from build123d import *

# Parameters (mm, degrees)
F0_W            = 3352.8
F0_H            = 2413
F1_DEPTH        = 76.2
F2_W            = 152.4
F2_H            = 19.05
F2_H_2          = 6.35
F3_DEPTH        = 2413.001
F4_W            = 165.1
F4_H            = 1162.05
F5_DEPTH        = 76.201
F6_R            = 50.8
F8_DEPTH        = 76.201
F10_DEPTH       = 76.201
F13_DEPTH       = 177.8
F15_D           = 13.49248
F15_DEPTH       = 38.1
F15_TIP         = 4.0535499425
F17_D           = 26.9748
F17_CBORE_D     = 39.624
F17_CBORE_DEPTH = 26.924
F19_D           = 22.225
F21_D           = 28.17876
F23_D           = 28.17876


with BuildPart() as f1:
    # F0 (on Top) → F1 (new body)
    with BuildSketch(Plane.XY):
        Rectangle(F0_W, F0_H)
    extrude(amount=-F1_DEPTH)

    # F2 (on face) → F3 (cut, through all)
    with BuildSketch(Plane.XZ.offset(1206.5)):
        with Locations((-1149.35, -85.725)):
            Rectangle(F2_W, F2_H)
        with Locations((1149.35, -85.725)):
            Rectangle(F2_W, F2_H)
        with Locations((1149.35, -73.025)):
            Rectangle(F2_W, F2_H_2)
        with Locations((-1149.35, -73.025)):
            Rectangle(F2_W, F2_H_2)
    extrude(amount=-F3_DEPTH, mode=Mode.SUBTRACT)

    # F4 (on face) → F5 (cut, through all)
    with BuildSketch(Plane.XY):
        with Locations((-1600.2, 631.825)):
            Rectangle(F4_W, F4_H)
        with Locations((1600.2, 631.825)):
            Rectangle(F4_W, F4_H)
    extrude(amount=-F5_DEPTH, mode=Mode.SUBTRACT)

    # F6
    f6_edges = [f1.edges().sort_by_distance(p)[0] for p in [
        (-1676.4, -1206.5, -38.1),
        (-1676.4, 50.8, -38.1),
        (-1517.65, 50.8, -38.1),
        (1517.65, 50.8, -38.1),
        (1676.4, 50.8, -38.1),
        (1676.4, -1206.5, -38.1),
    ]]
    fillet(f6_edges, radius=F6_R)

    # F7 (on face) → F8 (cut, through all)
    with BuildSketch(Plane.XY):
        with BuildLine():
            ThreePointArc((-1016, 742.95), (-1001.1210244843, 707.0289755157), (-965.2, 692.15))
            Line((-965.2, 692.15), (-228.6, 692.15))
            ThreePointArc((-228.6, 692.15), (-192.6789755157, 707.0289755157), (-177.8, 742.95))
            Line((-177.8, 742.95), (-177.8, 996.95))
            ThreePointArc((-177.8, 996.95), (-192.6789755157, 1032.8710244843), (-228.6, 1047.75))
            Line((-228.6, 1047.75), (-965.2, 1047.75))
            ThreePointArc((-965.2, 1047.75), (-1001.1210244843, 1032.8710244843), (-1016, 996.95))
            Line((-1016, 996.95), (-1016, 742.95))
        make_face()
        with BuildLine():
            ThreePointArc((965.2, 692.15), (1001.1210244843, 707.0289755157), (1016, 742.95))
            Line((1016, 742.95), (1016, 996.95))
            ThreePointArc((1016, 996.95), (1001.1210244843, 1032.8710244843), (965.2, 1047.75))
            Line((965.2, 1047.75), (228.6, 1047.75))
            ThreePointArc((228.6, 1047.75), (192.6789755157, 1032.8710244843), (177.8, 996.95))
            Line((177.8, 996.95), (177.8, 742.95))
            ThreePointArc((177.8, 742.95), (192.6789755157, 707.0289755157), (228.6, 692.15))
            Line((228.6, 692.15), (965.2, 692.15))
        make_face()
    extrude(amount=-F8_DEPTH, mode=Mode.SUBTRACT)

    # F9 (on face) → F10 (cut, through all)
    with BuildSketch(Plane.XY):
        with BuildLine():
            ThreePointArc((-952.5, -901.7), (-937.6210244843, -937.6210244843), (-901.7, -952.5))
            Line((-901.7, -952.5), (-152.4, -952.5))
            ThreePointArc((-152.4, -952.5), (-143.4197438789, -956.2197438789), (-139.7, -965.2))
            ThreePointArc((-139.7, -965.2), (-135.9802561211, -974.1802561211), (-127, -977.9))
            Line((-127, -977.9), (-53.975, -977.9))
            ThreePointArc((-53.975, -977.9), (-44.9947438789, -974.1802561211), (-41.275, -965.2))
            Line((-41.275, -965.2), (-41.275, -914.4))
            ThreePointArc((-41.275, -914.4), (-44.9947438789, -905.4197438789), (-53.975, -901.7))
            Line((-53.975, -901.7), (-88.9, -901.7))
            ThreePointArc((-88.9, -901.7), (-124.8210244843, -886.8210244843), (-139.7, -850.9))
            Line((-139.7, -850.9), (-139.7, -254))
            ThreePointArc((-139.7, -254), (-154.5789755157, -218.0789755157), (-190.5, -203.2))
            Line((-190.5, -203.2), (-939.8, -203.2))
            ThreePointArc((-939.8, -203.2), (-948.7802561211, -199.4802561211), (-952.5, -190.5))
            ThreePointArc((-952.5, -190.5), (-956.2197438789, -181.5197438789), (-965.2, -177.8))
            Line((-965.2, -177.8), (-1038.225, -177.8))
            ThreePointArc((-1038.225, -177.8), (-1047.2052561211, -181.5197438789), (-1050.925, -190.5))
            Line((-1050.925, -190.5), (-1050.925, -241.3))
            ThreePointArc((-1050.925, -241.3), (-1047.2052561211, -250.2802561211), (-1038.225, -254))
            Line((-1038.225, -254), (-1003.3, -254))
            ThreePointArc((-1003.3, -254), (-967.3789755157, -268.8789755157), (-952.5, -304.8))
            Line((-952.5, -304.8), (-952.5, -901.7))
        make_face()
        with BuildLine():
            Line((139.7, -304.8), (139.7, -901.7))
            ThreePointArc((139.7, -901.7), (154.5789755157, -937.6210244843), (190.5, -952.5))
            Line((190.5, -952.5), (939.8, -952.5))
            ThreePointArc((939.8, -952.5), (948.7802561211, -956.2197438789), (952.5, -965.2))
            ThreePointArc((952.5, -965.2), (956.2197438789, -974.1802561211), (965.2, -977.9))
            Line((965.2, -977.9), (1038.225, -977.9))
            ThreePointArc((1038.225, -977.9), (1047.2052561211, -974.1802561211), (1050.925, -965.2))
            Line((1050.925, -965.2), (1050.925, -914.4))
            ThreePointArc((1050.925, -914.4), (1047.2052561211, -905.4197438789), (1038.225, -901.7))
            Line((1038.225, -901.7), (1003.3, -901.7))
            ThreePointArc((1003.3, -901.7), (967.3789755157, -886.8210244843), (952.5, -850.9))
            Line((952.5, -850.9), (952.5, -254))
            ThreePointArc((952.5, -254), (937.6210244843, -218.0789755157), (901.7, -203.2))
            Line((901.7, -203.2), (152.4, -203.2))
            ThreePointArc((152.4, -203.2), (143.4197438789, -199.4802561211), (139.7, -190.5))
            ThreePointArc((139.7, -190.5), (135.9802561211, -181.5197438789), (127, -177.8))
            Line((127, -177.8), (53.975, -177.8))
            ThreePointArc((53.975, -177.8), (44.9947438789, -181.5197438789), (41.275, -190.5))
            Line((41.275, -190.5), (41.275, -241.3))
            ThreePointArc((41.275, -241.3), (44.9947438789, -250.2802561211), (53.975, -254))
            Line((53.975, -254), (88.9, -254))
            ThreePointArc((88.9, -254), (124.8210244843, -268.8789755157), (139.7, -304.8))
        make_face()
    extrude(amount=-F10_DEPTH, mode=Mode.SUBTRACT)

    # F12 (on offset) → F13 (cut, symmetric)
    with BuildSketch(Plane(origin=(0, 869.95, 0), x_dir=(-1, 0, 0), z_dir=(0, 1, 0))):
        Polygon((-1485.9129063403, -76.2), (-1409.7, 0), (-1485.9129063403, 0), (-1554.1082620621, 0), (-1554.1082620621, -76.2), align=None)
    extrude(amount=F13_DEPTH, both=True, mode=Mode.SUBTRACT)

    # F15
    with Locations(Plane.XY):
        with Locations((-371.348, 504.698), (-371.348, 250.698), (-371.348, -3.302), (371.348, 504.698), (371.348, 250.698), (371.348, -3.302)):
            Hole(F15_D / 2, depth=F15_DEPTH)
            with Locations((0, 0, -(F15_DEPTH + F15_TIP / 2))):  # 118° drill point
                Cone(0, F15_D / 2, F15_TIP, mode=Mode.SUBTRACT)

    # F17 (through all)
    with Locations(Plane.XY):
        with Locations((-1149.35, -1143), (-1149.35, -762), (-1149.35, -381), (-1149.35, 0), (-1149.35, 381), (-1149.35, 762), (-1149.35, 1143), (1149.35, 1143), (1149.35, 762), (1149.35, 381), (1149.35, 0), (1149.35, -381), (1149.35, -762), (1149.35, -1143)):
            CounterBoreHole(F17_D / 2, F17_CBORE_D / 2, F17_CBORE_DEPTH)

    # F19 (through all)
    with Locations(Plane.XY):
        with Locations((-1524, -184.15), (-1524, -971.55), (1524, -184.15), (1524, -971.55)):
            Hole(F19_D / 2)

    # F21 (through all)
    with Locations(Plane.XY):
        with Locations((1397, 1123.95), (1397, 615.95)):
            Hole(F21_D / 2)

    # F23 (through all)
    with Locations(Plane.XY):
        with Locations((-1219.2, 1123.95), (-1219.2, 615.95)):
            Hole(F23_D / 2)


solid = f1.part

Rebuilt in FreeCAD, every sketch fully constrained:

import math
import FreeCAD as App
import Part
import Sketcher
Q = App.Units.Quantity


def edges_at(feature, points):
    """Names of the edges that pass closest to the given points."""
    edges = feature.Shape.Edges
    near = lambda p: min(range(len(edges)), key=lambda i: edges[i].distToShape(Part.Vertex(*p))[0])
    return sorted({f"Edge{near(p) + 1}" for p in points})

doc = App.newDocument("Part")
body = doc.addObject("PartDesign::Body", "Body")

sketch1 = body.newObject("Sketcher::SketchObject", "Sketch")
sketch1.AttachmentSupport = (doc.getObject("XY_Plane"), [""])
sketch1.MapMode = "FlatFace"
sketch1.addGeometry(Part.LineSegment(App.Vector(-1676, 1206, 0), App.Vector(-1676, -1206, 0)), False)
sketch1.addGeometry(Part.LineSegment(App.Vector(-1676, -1206, 0), App.Vector(1676, -1206, 0)), False)
sketch1.addGeometry(Part.LineSegment(App.Vector(1676, -1206, 0), App.Vector(1676, 1206, 0)), False)
sketch1.addGeometry(Part.LineSegment(App.Vector(1676, 1206, 0), App.Vector(-1676, 1206, 0)), False)
sketch1.addConstraint(Sketcher.Constraint("Coincident", 0, 2, 1, 1))
sketch1.addConstraint(Sketcher.Constraint("Coincident", 1, 2, 2, 1))
sketch1.addConstraint(Sketcher.Constraint("Coincident", 2, 2, 3, 1))
sketch1.addConstraint(Sketcher.Constraint("Coincident", 3, 2, 0, 1))
sketch1.addConstraint(Sketcher.Constraint("Vertical", 0))
sketch1.addConstraint(Sketcher.Constraint("Horizontal", 1))
sketch1.addConstraint(Sketcher.Constraint("Vertical", 2))
sketch1.addConstraint(Sketcher.Constraint("Horizontal", 3))
sketch1.addConstraint(Sketcher.Constraint("Symmetric", 0, 2, 2, 2, -1, 1))
sketch1.addConstraint(Sketcher.Constraint("DistanceX", 1, 1, 1, 2, Q("132 in")))
sketch1.addConstraint(Sketcher.Constraint("DistanceY", 0, 2, 0, 1, Q("95 in")))
pad1 = body.newObject("PartDesign::Pad", "Pad")
pad1.Profile = sketch1
pad1.Length = Q("3 in")
pad1.Reversed = True

sketch2 = body.newObject("Sketcher::SketchObject", "Sketch001")
sketch2.AttachmentSupport = (doc.getObject("XZ_Plane"), [""])
sketch2.MapMode = "FlatFace"
sketch2.AttachmentOffset = App.Placement(App.Vector(0, 0, 47.5 * 25.4), App.Rotation())
sketch2.addGeometry(Part.LineSegment(App.Vector(-1226, -95, 0), App.Vector(-1073, -95, 0)), False)
sketch2.addGeometry(Part.LineSegment(App.Vector(-1073, -95, 0), App.Vector(-1073, -70, 0)), False)
sketch2.addGeometry(Part.LineSegment(App.Vector(-1073, -70, 0), App.Vector(-1226, -70, 0)), False)
sketch2.addGeometry(Part.LineSegment(App.Vector(-1226, -70, 0), App.Vector(-1226, -95, 0)), False)
sketch2.addGeometry(Part.LineSegment(App.Vector(1073, -95, 0), App.Vector(1226, -95, 0)), False)
sketch2.addGeometry(Part.LineSegment(App.Vector(1226, -95, 0), App.Vector(1226, -70, 0)), False)
sketch2.addGeometry(Part.LineSegment(App.Vector(1226, -70, 0), App.Vector(1073, -70, 0)), False)
sketch2.addGeometry(Part.LineSegment(App.Vector(1073, -70, 0), App.Vector(1073, -95, 0)), False)
sketch2.addConstraint(Sketcher.Constraint("Coincident", 0, 2, 1, 1))
sketch2.addConstraint(Sketcher.Constraint("Coincident", 1, 2, 2, 1))
sketch2.addConstraint(Sketcher.Constraint("Coincident", 2, 2, 3, 1))
sketch2.addConstraint(Sketcher.Constraint("Coincident", 3, 2, 0, 1))
sketch2.addConstraint(Sketcher.Constraint("Coincident", 4, 2, 5, 1))
sketch2.addConstraint(Sketcher.Constraint("Coincident", 5, 2, 6, 1))
sketch2.addConstraint(Sketcher.Constraint("Coincident", 6, 2, 7, 1))
sketch2.addConstraint(Sketcher.Constraint("Coincident", 7, 2, 4, 1))
sketch2.addConstraint(Sketcher.Constraint("Horizontal", 0))
sketch2.addConstraint(Sketcher.Constraint("Vertical", 1))
sketch2.addConstraint(Sketcher.Constraint("Horizontal", 2))
sketch2.addConstraint(Sketcher.Constraint("Vertical", 3))
sketch2.addConstraint(Sketcher.Constraint("Horizontal", 4))
sketch2.addConstraint(Sketcher.Constraint("Vertical", 5))
sketch2.addConstraint(Sketcher.Constraint("Horizontal", 6))
sketch2.addConstraint(Sketcher.Constraint("Vertical", 7))
sketch2.addConstraint(Sketcher.Constraint("Symmetric", 3, 2, 4, 2, -2))
sketch2.addConstraint(Sketcher.Constraint("Symmetric", 1, 2, 6, 2, -2))
sketch2.addConstraint(Sketcher.Constraint("DistanceX", 0, 1, 0, 2, Q("6 in")))
sketch2.addConstraint(Sketcher.Constraint("DistanceY", 1, 1, 1, 2, Q("1 in")))
sketch2.addConstraint(Sketcher.Constraint("DistanceX", 0, 2, 4, 2, Q("90.5 in")))
sketch2.addConstraint(Sketcher.Constraint("DistanceY", 0, 2, -1, 1, Q("3.75 in")))
pocket1 = body.newObject("PartDesign::Pocket", "Pocket")
pocket1.Profile = sketch2
pocket1.Type = "ThroughAll"

sketch3 = body.newObject("Sketcher::SketchObject", "Sketch002")
sketch3.AttachmentSupport = (doc.getObject("XY_Plane"), [""])
sketch3.MapMode = "FlatFace"
sketch3.addGeometry(Part.LineSegment(App.Vector(-1683, 1213, 0), App.Vector(-1683, 51, 0)), False)
sketch3.addGeometry(Part.LineSegment(App.Vector(-1683, 51, 0), App.Vector(-1518, 51, 0)), False)
sketch3.addGeometry(Part.LineSegment(App.Vector(-1518, 51, 0), App.Vector(-1518, 1213, 0)), False)
sketch3.addGeometry(Part.LineSegment(App.Vector(-1518, 1213, 0), App.Vector(-1683, 1213, 0)), False)
sketch3.addGeometry(Part.LineSegment(App.Vector(1518, 1213, 0), App.Vector(1518, 51, 0)), False)
sketch3.addGeometry(Part.LineSegment(App.Vector(1518, 51, 0), App.Vector(1683, 51, 0)), False)
sketch3.addGeometry(Part.LineSegment(App.Vector(1683, 51, 0), App.Vector(1683, 1213, 0)), False)
sketch3.addGeometry(Part.LineSegment(App.Vector(1683, 1213, 0), App.Vector(1518, 1213, 0)), False)
sketch3.addConstraint(Sketcher.Constraint("Coincident", 0, 2, 1, 1))
sketch3.addConstraint(Sketcher.Constraint("Coincident", 1, 2, 2, 1))
sketch3.addConstraint(Sketcher.Constraint("Coincident", 2, 2, 3, 1))
sketch3.addConstraint(Sketcher.Constraint("Coincident", 3, 2, 0, 1))
sketch3.addConstraint(Sketcher.Constraint("Coincident", 4, 2, 5, 1))
sketch3.addConstraint(Sketcher.Constraint("Coincident", 5, 2, 6, 1))
sketch3.addConstraint(Sketcher.Constraint("Coincident", 6, 2, 7, 1))
sketch3.addConstraint(Sketcher.Constraint("Coincident", 7, 2, 4, 1))
sketch3.addConstraint(Sketcher.Constraint("Vertical", 0))
sketch3.addConstraint(Sketcher.Constraint("Horizontal", 1))
sketch3.addConstraint(Sketcher.Constraint("Vertical", 2))
sketch3.addConstraint(Sketcher.Constraint("Horizontal", 3))
sketch3.addConstraint(Sketcher.Constraint("Vertical", 4))
sketch3.addConstraint(Sketcher.Constraint("Horizontal", 5))
sketch3.addConstraint(Sketcher.Constraint("Vertical", 6))
sketch3.addConstraint(Sketcher.Constraint("Horizontal", 7))
sketch3.addConstraint(Sketcher.Constraint("Symmetric", 1, 2, 4, 2, -2))
sketch3.addConstraint(Sketcher.Constraint("Symmetric", 3, 2, 6, 2, -2))
sketch3.addConstraint(Sketcher.Constraint("DistanceX", 1, 1, 1, 2, Q("6.5 in")))
sketch3.addConstraint(Sketcher.Constraint("DistanceY", -1, 1, 0, 2, Q("2 in")))
sketch3.addConstraint(Sketcher.Constraint("DistanceX", 0, 2, 4, 2, Q("126 in")))
sketch3.addConstraint(Sketcher.Constraint("DistanceY", 0, 2, 0, 1, Q("45.75 in")))
pocket2 = body.newObject("PartDesign::Pocket", "Pocket001")
pocket2.Profile = sketch3
pocket2.Type = "ThroughAll"
doc.recompute()

fillet = body.newObject("PartDesign::Fillet", "Fillet")
fillet.Base = (pocket2, edges_at(pocket2, [
    (-1676.4, -1206.5, -38.1),
    (-1676.4, 50.8, -38.1),
    (-1517.65, 50.8, -38.1),
    (1517.65, 50.8, -38.1),
    (1676.4, 50.8, -38.1),
    (1676.4, -1206.5, -38.1),
]))
fillet.Radius = Q("2 in")

sketch4 = body.newObject("Sketcher::SketchObject", "Sketch003")
sketch4.AttachmentSupport = (doc.getObject("XY_Plane"), [""])
sketch4.MapMode = "FlatFace"
sketch4.addGeometry(Part.ArcOfCircle(Part.Circle(App.Vector(-965, 743, 0), App.Vector(0, 0, 1), 51), math.radians(180), math.radians(270)), False)
sketch4.addGeometry(Part.LineSegment(App.Vector(-965, 692, 0), App.Vector(-229, 692, 0)), False)
sketch4.addGeometry(Part.ArcOfCircle(Part.Circle(App.Vector(-229, 743, 0), App.Vector(0, 0, 1), 51), math.radians(-90), math.radians(0)), False)
sketch4.addGeometry(Part.LineSegment(App.Vector(-178, 743, 0), App.Vector(-178, 997, 0)), False)
sketch4.addGeometry(Part.ArcOfCircle(Part.Circle(App.Vector(-229, 997, 0), App.Vector(0, 0, 1), 51), math.radians(0), math.radians(90)), False)
sketch4.addGeometry(Part.LineSegment(App.Vector(-229, 1048, 0), App.Vector(-965, 1048, 0)), False)
sketch4.addGeometry(Part.ArcOfCircle(Part.Circle(App.Vector(-965, 997, 0), App.Vector(0, 0, 1), 51), math.radians(90), math.radians(180)), False)
sketch4.addGeometry(Part.LineSegment(App.Vector(-1016, 997, 0), App.Vector(-1016, 743, 0)), False)
sketch4.addGeometry(Part.ArcOfCircle(Part.Circle(App.Vector(965, 743, 0), App.Vector(0, 0, 1), 51), math.radians(-90), math.radians(0)), False)
sketch4.addGeometry(Part.LineSegment(App.Vector(1016, 743, 0), App.Vector(1016, 997, 0)), False)
sketch4.addGeometry(Part.ArcOfCircle(Part.Circle(App.Vector(965, 997, 0), App.Vector(0, 0, 1), 51), math.radians(0), math.radians(90)), False)
sketch4.addGeometry(Part.LineSegment(App.Vector(965, 1048, 0), App.Vector(229, 1048, 0)), False)
sketch4.addGeometry(Part.ArcOfCircle(Part.Circle(App.Vector(229, 997, 0), App.Vector(0, 0, 1), 51), math.radians(90), math.radians(180)), False)
sketch4.addGeometry(Part.LineSegment(App.Vector(178, 997, 0), App.Vector(178, 743, 0)), False)
sketch4.addGeometry(Part.ArcOfCircle(Part.Circle(App.Vector(229, 743, 0), App.Vector(0, 0, 1), 51), math.radians(180), math.radians(270)), False)
sketch4.addGeometry(Part.LineSegment(App.Vector(229, 692, 0), App.Vector(965, 692, 0)), False)
sketch4.addConstraint(Sketcher.Constraint("Tangent", 0, 2, 1, 1))
sketch4.addConstraint(Sketcher.Constraint("Tangent", 1, 2, 2, 1))
sketch4.addConstraint(Sketcher.Constraint("Tangent", 2, 2, 3, 1))
sketch4.addConstraint(Sketcher.Constraint("Tangent", 3, 2, 4, 1))
sketch4.addConstraint(Sketcher.Constraint("Tangent", 4, 2, 5, 1))
sketch4.addConstraint(Sketcher.Constraint("Tangent", 5, 2, 6, 1))
sketch4.addConstraint(Sketcher.Constraint("Tangent", 6, 2, 7, 1))
sketch4.addConstraint(Sketcher.Constraint("Tangent", 7, 2, 0, 1))
sketch4.addConstraint(Sketcher.Constraint("Tangent", 8, 2, 9, 1))
sketch4.addConstraint(Sketcher.Constraint("Tangent", 9, 2, 10, 1))
sketch4.addConstraint(Sketcher.Constraint("Tangent", 10, 2, 11, 1))
sketch4.addConstraint(Sketcher.Constraint("Tangent", 11, 2, 12, 1))
sketch4.addConstraint(Sketcher.Constraint("Tangent", 12, 2, 13, 1))
sketch4.addConstraint(Sketcher.Constraint("Tangent", 13, 2, 14, 1))
sketch4.addConstraint(Sketcher.Constraint("Tangent", 14, 2, 15, 1))
sketch4.addConstraint(Sketcher.Constraint("Tangent", 15, 2, 8, 1))
sketch4.addConstraint(Sketcher.Constraint("Horizontal", 1))
sketch4.addConstraint(Sketcher.Constraint("Vertical", 3))
sketch4.addConstraint(Sketcher.Constraint("Horizontal", 5))
sketch4.addConstraint(Sketcher.Constraint("Vertical", 7))
sketch4.addConstraint(Sketcher.Constraint("Vertical", 9))
sketch4.addConstraint(Sketcher.Constraint("Horizontal", 11))
sketch4.addConstraint(Sketcher.Constraint("Vertical", 13))
sketch4.addConstraint(Sketcher.Constraint("Horizontal", 15))
sketch4.addConstraint(Sketcher.Constraint("Equal", 0, 2))
sketch4.addConstraint(Sketcher.Constraint("Equal", 2, 4))
sketch4.addConstraint(Sketcher.Constraint("Equal", 4, 6))
sketch4.addConstraint(Sketcher.Constraint("Equal", 6, 8))
sketch4.addConstraint(Sketcher.Constraint("Equal", 8, 10))
sketch4.addConstraint(Sketcher.Constraint("Equal", 10, 12))
sketch4.addConstraint(Sketcher.Constraint("Equal", 12, 14))
sketch4.addConstraint(Sketcher.Constraint("Symmetric", 0, 3, 8, 3, -2))
sketch4.addConstraint(Sketcher.Constraint("Symmetric", 4, 3, 12, 3, -2))
sketch4.addConstraint(Sketcher.Constraint("Radius", 0, Q("2 in")))
sketch4.addConstraint(Sketcher.Constraint("DistanceX", 1, 1, 1, 2, Q("29 in")))
sketch4.addConstraint(Sketcher.Constraint("DistanceY", 3, 1, 3, 2, Q("10 in")))
sketch4.addConstraint(Sketcher.Constraint("DistanceX", 0, 3, -1, 1, Q("38 in")))
sketch4.addConstraint(Sketcher.Constraint("DistanceY", -1, 1, 0, 3, Q("29.25 in")))
pocket3 = body.newObject("PartDesign::Pocket", "Pocket002")
pocket3.Profile = sketch4
pocket3.Type = "ThroughAll"

sketch5 = body.newObject("Sketcher::SketchObject", "Sketch004")
sketch5.AttachmentSupport = (doc.getObject("XY_Plane"), [""])
sketch5.MapMode = "FlatFace"
sketch5.addGeometry(Part.ArcOfCircle(Part.Circle(App.Vector(-902, -902, 0), App.Vector(0, 0, 1), 51), math.radians(180), math.radians(270)), False)
sketch5.addGeometry(Part.LineSegment(App.Vector(-902, -952, 0), App.Vector(-152, -952, 0)), False)
sketch5.addGeometry(Part.ArcOfCircle(Part.Circle(App.Vector(-152, -965, 0), App.Vector(0, 0, 1), 13), math.radians(0), math.radians(90)), False)
sketch5.addGeometry(Part.ArcOfCircle(Part.Circle(App.Vector(-127, -965, 0), App.Vector(0, 0, 1), 13), math.radians(180), math.radians(270)), False)
sketch5.addGeometry(Part.LineSegment(App.Vector(-127, -978, 0), App.Vector(-54, -978, 0)), False)
sketch5.addGeometry(Part.ArcOfCircle(Part.Circle(App.Vector(-54, -965, 0), App.Vector(0, 0, 1), 13), math.radians(-90), math.radians(0)), False)
sketch5.addGeometry(Part.LineSegment(App.Vector(-41, -965, 0), App.Vector(-41, -914, 0)), False)
sketch5.addGeometry(Part.ArcOfCircle(Part.Circle(App.Vector(-54, -914, 0), App.Vector(0, 0, 1), 13), math.radians(0), math.radians(90)), False)
sketch5.addGeometry(Part.LineSegment(App.Vector(-54, -902, 0), App.Vector(-89, -902, 0)), False)
sketch5.addGeometry(Part.ArcOfCircle(Part.Circle(App.Vector(-89, -851, 0), App.Vector(0, 0, 1), 51), math.radians(180), math.radians(270)), False)
sketch5.addGeometry(Part.LineSegment(App.Vector(-140, -851, 0), App.Vector(-140, -254, 0)), False)
sketch5.addGeometry(Part.ArcOfCircle(Part.Circle(App.Vector(-190, -254, 0), App.Vector(0, 0, 1), 51), math.radians(0), math.radians(90)), False)
sketch5.addGeometry(Part.LineSegment(App.Vector(-190, -203, 0), App.Vector(-940, -203, 0)), False)
sketch5.addGeometry(Part.ArcOfCircle(Part.Circle(App.Vector(-940, -190, 0), App.Vector(0, 0, 1), 13), math.radians(180), math.radians(270)), False)
sketch5.addGeometry(Part.ArcOfCircle(Part.Circle(App.Vector(-965, -190, 0), App.Vector(0, 0, 1), 13), math.radians(0), math.radians(90)), False)
sketch5.addGeometry(Part.LineSegment(App.Vector(-965, -178, 0), App.Vector(-1038, -178, 0)), False)
sketch5.addGeometry(Part.ArcOfCircle(Part.Circle(App.Vector(-1038, -190, 0), App.Vector(0, 0, 1), 13), math.radians(90), math.radians(180)), False)
sketch5.addGeometry(Part.LineSegment(App.Vector(-1051, -190, 0), App.Vector(-1051, -241, 0)), False)
sketch5.addGeometry(Part.ArcOfCircle(Part.Circle(App.Vector(-1038, -241, 0), App.Vector(0, 0, 1), 13), math.radians(180), math.radians(270)), False)
sketch5.addGeometry(Part.LineSegment(App.Vector(-1038, -254, 0), App.Vector(-1003, -254, 0)), False)
sketch5.addGeometry(Part.ArcOfCircle(Part.Circle(App.Vector(-1003, -305, 0), App.Vector(0, 0, 1), 51), math.radians(0), math.radians(90)), False)
sketch5.addGeometry(Part.LineSegment(App.Vector(-952, -305, 0), App.Vector(-952, -902, 0)), False)
sketch5.addGeometry(Part.LineSegment(App.Vector(140, -305, 0), App.Vector(140, -902, 0)), False)
sketch5.addGeometry(Part.ArcOfCircle(Part.Circle(App.Vector(190, -902, 0), App.Vector(0, 0, 1), 51), math.radians(180), math.radians(270)), False)
sketch5.addGeometry(Part.LineSegment(App.Vector(190, -952, 0), App.Vector(940, -952, 0)), False)
sketch5.addGeometry(Part.ArcOfCircle(Part.Circle(App.Vector(940, -965, 0), App.Vector(0, 0, 1), 13), math.radians(0), math.radians(90)), False)
sketch5.addGeometry(Part.ArcOfCircle(Part.Circle(App.Vector(965, -965, 0), App.Vector(0, 0, 1), 13), math.radians(180), math.radians(270)), False)
sketch5.addGeometry(Part.LineSegment(App.Vector(965, -978, 0), App.Vector(1038, -978, 0)), False)
sketch5.addGeometry(Part.ArcOfCircle(Part.Circle(App.Vector(1038, -965, 0), App.Vector(0, 0, 1), 13), math.radians(-90), math.radians(0)), False)
sketch5.addGeometry(Part.LineSegment(App.Vector(1051, -965, 0), App.Vector(1051, -914, 0)), False)
sketch5.addGeometry(Part.ArcOfCircle(Part.Circle(App.Vector(1038, -914, 0), App.Vector(0, 0, 1), 13), math.radians(0), math.radians(90)), False)
sketch5.addGeometry(Part.LineSegment(App.Vector(1038, -902, 0), App.Vector(1003, -902, 0)), False)
sketch5.addGeometry(Part.ArcOfCircle(Part.Circle(App.Vector(1003, -851, 0), App.Vector(0, 0, 1), 51), math.radians(180), math.radians(270)), False)
sketch5.addGeometry(Part.LineSegment(App.Vector(952, -851, 0), App.Vector(952, -254, 0)), False)
sketch5.addGeometry(Part.ArcOfCircle(Part.Circle(App.Vector(902, -254, 0), App.Vector(0, 0, 1), 51), math.radians(0), math.radians(90)), False)
sketch5.addGeometry(Part.LineSegment(App.Vector(902, -203, 0), App.Vector(152, -203, 0)), False)
sketch5.addGeometry(Part.ArcOfCircle(Part.Circle(App.Vector(152, -190, 0), App.Vector(0, 0, 1), 13), math.radians(180), math.radians(270)), False)
sketch5.addGeometry(Part.ArcOfCircle(Part.Circle(App.Vector(127, -190, 0), App.Vector(0, 0, 1), 13), math.radians(0), math.radians(90)), False)
sketch5.addGeometry(Part.LineSegment(App.Vector(127, -178, 0), App.Vector(54, -178, 0)), False)
sketch5.addGeometry(Part.ArcOfCircle(Part.Circle(App.Vector(54, -190, 0), App.Vector(0, 0, 1), 13), math.radians(90), math.radians(180)), False)
sketch5.addGeometry(Part.LineSegment(App.Vector(41, -190, 0), App.Vector(41, -241, 0)), False)
sketch5.addGeometry(Part.ArcOfCircle(Part.Circle(App.Vector(54, -241, 0), App.Vector(0, 0, 1), 13), math.radians(180), math.radians(270)), False)
sketch5.addGeometry(Part.LineSegment(App.Vector(54, -254, 0), App.Vector(89, -254, 0)), False)
sketch5.addGeometry(Part.ArcOfCircle(Part.Circle(App.Vector(89, -305, 0), App.Vector(0, 0, 1), 51), math.radians(0), math.radians(90)), False)
sketch5.addConstraint(Sketcher.Constraint("Tangent", 0, 2, 1, 1))
sketch5.addConstraint(Sketcher.Constraint("Tangent", 1, 2, 2, 2))
sketch5.addConstraint(Sketcher.Constraint("Tangent", 2, 1, 3, 1))
sketch5.addConstraint(Sketcher.Constraint("Tangent", 3, 2, 4, 1))
sketch5.addConstraint(Sketcher.Constraint("Tangent", 4, 2, 5, 1))
sketch5.addConstraint(Sketcher.Constraint("Tangent", 5, 2, 6, 1))
sketch5.addConstraint(Sketcher.Constraint("Tangent", 6, 2, 7, 1))
sketch5.addConstraint(Sketcher.Constraint("Tangent", 7, 2, 8, 1))
sketch5.addConstraint(Sketcher.Constraint("Tangent", 8, 2, 9, 2))
sketch5.addConstraint(Sketcher.Constraint("Tangent", 9, 1, 10, 1))
sketch5.addConstraint(Sketcher.Constraint("Tangent", 10, 2, 11, 1))
sketch5.addConstraint(Sketcher.Constraint("Tangent", 11, 2, 12, 1))
sketch5.addConstraint(Sketcher.Constraint("Tangent", 12, 2, 13, 2))
sketch5.addConstraint(Sketcher.Constraint("Tangent", 13, 1, 14, 1))
sketch5.addConstraint(Sketcher.Constraint("Tangent", 14, 2, 15, 1))
sketch5.addConstraint(Sketcher.Constraint("Tangent", 15, 2, 16, 1))
sketch5.addConstraint(Sketcher.Constraint("Tangent", 16, 2, 17, 1))
sketch5.addConstraint(Sketcher.Constraint("Tangent", 17, 2, 18, 1))
sketch5.addConstraint(Sketcher.Constraint("Tangent", 18, 2, 19, 1))
sketch5.addConstraint(Sketcher.Constraint("Tangent", 19, 2, 20, 2))
sketch5.addConstraint(Sketcher.Constraint("Tangent", 20, 1, 21, 1))
sketch5.addConstraint(Sketcher.Constraint("Tangent", 21, 2, 0, 1))
sketch5.addConstraint(Sketcher.Constraint("Tangent", 22, 2, 23, 1))
sketch5.addConstraint(Sketcher.Constraint("Tangent", 23, 2, 24, 1))
sketch5.addConstraint(Sketcher.Constraint("Tangent", 24, 2, 25, 2))
sketch5.addConstraint(Sketcher.Constraint("Tangent", 25, 1, 26, 1))
sketch5.addConstraint(Sketcher.Constraint("Tangent", 26, 2, 27, 1))
sketch5.addConstraint(Sketcher.Constraint("Tangent", 27, 2, 28, 1))
sketch5.addConstraint(Sketcher.Constraint("Tangent", 28, 2, 29, 1))
sketch5.addConstraint(Sketcher.Constraint("Tangent", 29, 2, 30, 1))
sketch5.addConstraint(Sketcher.Constraint("Tangent", 30, 2, 31, 1))
sketch5.addConstraint(Sketcher.Constraint("Tangent", 31, 2, 32, 2))
sketch5.addConstraint(Sketcher.Constraint("Tangent", 32, 1, 33, 1))
sketch5.addConstraint(Sketcher.Constraint("Tangent", 33, 2, 34, 1))
sketch5.addConstraint(Sketcher.Constraint("Tangent", 34, 2, 35, 1))
sketch5.addConstraint(Sketcher.Constraint("Tangent", 35, 2, 36, 2))
sketch5.addConstraint(Sketcher.Constraint("Tangent", 36, 1, 37, 1))
sketch5.addConstraint(Sketcher.Constraint("Tangent", 37, 2, 38, 1))
sketch5.addConstraint(Sketcher.Constraint("Tangent", 38, 2, 39, 1))
sketch5.addConstraint(Sketcher.Constraint("Tangent", 39, 2, 40, 1))
sketch5.addConstraint(Sketcher.Constraint("Tangent", 40, 2, 41, 1))
sketch5.addConstraint(Sketcher.Constraint("Tangent", 41, 2, 42, 1))
sketch5.addConstraint(Sketcher.Constraint("Tangent", 42, 2, 43, 2))
sketch5.addConstraint(Sketcher.Constraint("Tangent", 43, 1, 22, 1))
sketch5.addConstraint(Sketcher.Constraint("Horizontal", 1))
sketch5.addConstraint(Sketcher.Constraint("Horizontal", 4))
sketch5.addConstraint(Sketcher.Constraint("Vertical", 6))
sketch5.addConstraint(Sketcher.Constraint("Horizontal", 8))
sketch5.addConstraint(Sketcher.Constraint("Vertical", 10))
sketch5.addConstraint(Sketcher.Constraint("Horizontal", 12))
sketch5.addConstraint(Sketcher.Constraint("Horizontal", 15))
sketch5.addConstraint(Sketcher.Constraint("Vertical", 17))
sketch5.addConstraint(Sketcher.Constraint("Horizontal", 19))
sketch5.addConstraint(Sketcher.Constraint("Vertical", 21))
sketch5.addConstraint(Sketcher.Constraint("Vertical", 22))
sketch5.addConstraint(Sketcher.Constraint("Horizontal", 24))
sketch5.addConstraint(Sketcher.Constraint("Horizontal", 27))
sketch5.addConstraint(Sketcher.Constraint("Vertical", 29))
sketch5.addConstraint(Sketcher.Constraint("Horizontal", 31))
sketch5.addConstraint(Sketcher.Constraint("Vertical", 33))
sketch5.addConstraint(Sketcher.Constraint("Horizontal", 35))
sketch5.addConstraint(Sketcher.Constraint("Horizontal", 38))
sketch5.addConstraint(Sketcher.Constraint("Vertical", 40))
sketch5.addConstraint(Sketcher.Constraint("Horizontal", 42))
sketch5.addConstraint(Sketcher.Constraint("Equal", 2, 3))
sketch5.addConstraint(Sketcher.Constraint("Equal", 3, 5))
sketch5.addConstraint(Sketcher.Constraint("Equal", 5, 7))
sketch5.addConstraint(Sketcher.Constraint("Equal", 0, 9))
sketch5.addConstraint(Sketcher.Constraint("Equal", 9, 11))
sketch5.addConstraint(Sketcher.Constraint("Equal", 7, 13))
sketch5.addConstraint(Sketcher.Constraint("Equal", 13, 14))
sketch5.addConstraint(Sketcher.Constraint("Equal", 14, 16))
sketch5.addConstraint(Sketcher.Constraint("Equal", 16, 18))
sketch5.addConstraint(Sketcher.Constraint("Equal", 11, 20))
sketch5.addConstraint(Sketcher.Constraint("Equal", 20, 23))
sketch5.addConstraint(Sketcher.Constraint("Equal", 18, 25))
sketch5.addConstraint(Sketcher.Constraint("Equal", 25, 26))
sketch5.addConstraint(Sketcher.Constraint("Equal", 26, 28))
sketch5.addConstraint(Sketcher.Constraint("Equal", 28, 30))
sketch5.addConstraint(Sketcher.Constraint("Equal", 23, 32))
sketch5.addConstraint(Sketcher.Constraint("Equal", 32, 34))
sketch5.addConstraint(Sketcher.Constraint("Equal", 30, 36))
sketch5.addConstraint(Sketcher.Constraint("Equal", 36, 37))
sketch5.addConstraint(Sketcher.Constraint("Equal", 37, 39))
sketch5.addConstraint(Sketcher.Constraint("Equal", 39, 41))
sketch5.addConstraint(Sketcher.Constraint("Equal", 34, 43))
sketch5.addConstraint(Sketcher.Constraint("Horizontal", 2, 3, 3, 3))
sketch5.addConstraint(Sketcher.Constraint("Horizontal", 13, 3, 14, 3))
sketch5.addConstraint(Sketcher.Constraint("Horizontal", 0, 3, 23, 3))
sketch5.addConstraint(Sketcher.Constraint("Horizontal", 25, 3, 26, 3))
sketch5.addConstraint(Sketcher.Constraint("Horizontal", 7, 3, 30, 3))
sketch5.addConstraint(Sketcher.Constraint("Horizontal", 11, 3, 34, 3))
sketch5.addConstraint(Sketcher.Constraint("Horizontal", 36, 3, 37, 3))
sketch5.addConstraint(Sketcher.Constraint("Horizontal", 18, 3, 41, 3))
sketch5.addConstraint(Sketcher.Constraint("Horizontal", 23, 3, 7, 2))
sketch5.addConstraint(Sketcher.Constraint("Horizontal", 10, 2, 18, 2))
sketch5.addConstraint(Sketcher.Constraint("Vertical", 2, 1, 9, 1))
sketch5.addConstraint(Sketcher.Constraint("Vertical", 13, 1, 20, 1))
sketch5.addConstraint(Sketcher.Constraint("Vertical", 25, 1, 32, 1))
sketch5.addConstraint(Sketcher.Constraint("Vertical", 22, 2, 36, 1))
sketch5.addConstraint(Sketcher.Constraint("Equal", 4, 15))
sketch5.addConstraint(Sketcher.Constraint("Equal", 12, 24))
sketch5.addConstraint(Sketcher.Constraint("Equal", 15, 27))
sketch5.addConstraint(Sketcher.Constraint("Equal", 27, 38))
sketch5.addConstraint(Sketcher.Constraint("Radius", 0, Q("2 in")))
sketch5.addConstraint(Sketcher.Constraint("Radius", 2, Q("0.5 in")))
sketch5.addConstraint(Sketcher.Constraint("DistanceX", 1, 1, 1, 2, Q("29.5 in")))
sketch5.addConstraint(Sketcher.Constraint("DistanceY", 10, 1, 10, 2, Q("23.5 in")))
sketch5.addConstraint(Sketcher.Constraint("DistanceX", 2, 3, -1, 1, Q("6 in")))
sketch5.addConstraint(Sketcher.Constraint("DistanceY", 2, 3, -1, 1, Q("38 in")))
sketch5.addConstraint(Sketcher.Constraint("DistanceX", -1, 1, 25, 3, Q("37 in")))
sketch5.addConstraint(Sketcher.Constraint("DistanceX", 4, 1, 4, 2, Q("2.875 in")))
pocket4 = body.newObject("PartDesign::Pocket", "Pocket003")
pocket4.Profile = sketch5
pocket4.Type = "ThroughAll"

sketch6 = body.newObject("Sketcher::SketchObject", "Sketch005")
sketch6.AttachmentSupport = (doc.getObject("XZ_Plane"), [""])
sketch6.MapMode = "FlatFace"
sketch6.AttachmentOffset = App.Placement(App.Vector(0, 0, -34.25 * 25.4), App.Rotation())
sketch6.addGeometry(Part.LineSegment(App.Vector(1486, -76, 0), App.Vector(1410, 0, 0)), False)
sketch6.addGeometry(Part.LineSegment(App.Vector(1410, 0, 0), App.Vector(1554, 0, 0)), False)
sketch6.addGeometry(Part.LineSegment(App.Vector(1554, 0, 0), App.Vector(1554, -76, 0)), False)
sketch6.addGeometry(Part.LineSegment(App.Vector(1554, -76, 0), App.Vector(1486, -76, 0)), False)
sketch6.addConstraint(Sketcher.Constraint("Coincident", 0, 2, 1, 1))
sketch6.addConstraint(Sketcher.Constraint("Coincident", 1, 2, 2, 1))
sketch6.addConstraint(Sketcher.Constraint("Coincident", 2, 2, 3, 1))
sketch6.addConstraint(Sketcher.Constraint("Coincident", 3, 2, 0, 1))
sketch6.addConstraint(Sketcher.Constraint("Horizontal", 1))
sketch6.addConstraint(Sketcher.Constraint("Vertical", 2))
sketch6.addConstraint(Sketcher.Constraint("Horizontal", 3))
sketch6.addConstraint(Sketcher.Constraint("PointOnObject", 0, 2, -1))
sketch6.addConstraint(Sketcher.Constraint("DistanceY", 2, 2, 2, 1, Q("3 in")))
sketch6.addConstraint(Sketcher.Constraint("DistanceX", -1, 1, 0, 2, Q("55.5 in")))
sketch6.addConstraint(Sketcher.Constraint("Distance", 0, Q("4.243 in")))
sketch6.addConstraint(Sketcher.Constraint("DistanceX", 1, 1, 1, 2, 144.408262))
pocket5 = body.newObject("PartDesign::Pocket", "Pocket004")
pocket5.Profile = sketch6
pocket5.Length = Q("14 in")
pocket5.Midplane = True

sketch7 = body.newObject("Sketcher::SketchObject", "Sketch006")
sketch7.AttachmentSupport = (doc.getObject("XY_Plane"), [""])
sketch7.MapMode = "FlatFace"
sketch7.addGeometry(Part.Circle(App.Vector(-371, 505, 0), App.Vector(0, 0, 1), 7), False)
sketch7.addGeometry(Part.Circle(App.Vector(-371, 251, 0), App.Vector(0, 0, 1), 7), False)
sketch7.addGeometry(Part.Circle(App.Vector(-371, -3, 0), App.Vector(0, 0, 1), 7), False)
sketch7.addGeometry(Part.Circle(App.Vector(371, 505, 0), App.Vector(0, 0, 1), 7), False)
sketch7.addGeometry(Part.Circle(App.Vector(371, 251, 0), App.Vector(0, 0, 1), 7), False)
sketch7.addGeometry(Part.Circle(App.Vector(371, -3, 0), App.Vector(0, 0, 1), 7), False)
sketch7.addConstraint(Sketcher.Constraint("Equal", 0, 1))
sketch7.addConstraint(Sketcher.Constraint("Equal", 1, 2))
sketch7.addConstraint(Sketcher.Constraint("Equal", 2, 3))
sketch7.addConstraint(Sketcher.Constraint("Equal", 3, 4))
sketch7.addConstraint(Sketcher.Constraint("Equal", 4, 5))
sketch7.addConstraint(Sketcher.Constraint("Symmetric", 0, 3, 3, 3, -2))
sketch7.addConstraint(Sketcher.Constraint("Symmetric", 1, 3, 4, 3, -2))
sketch7.addConstraint(Sketcher.Constraint("Symmetric", 2, 3, 5, 3, -2))
sketch7.addConstraint(Sketcher.Constraint("Vertical", 0, 3, 1, 3))
sketch7.addConstraint(Sketcher.Constraint("Vertical", 1, 3, 2, 3))
sketch7.addConstraint(Sketcher.Constraint("DistanceY", 1, 3, 0, 3, Q("10 in")))
sketch7.addConstraint(Sketcher.Constraint("DistanceY", 2, 3, 1, 3, Q("10 in")))
sketch7.addConstraint(Sketcher.Constraint("Diameter", 0, Q("0.5312 in")))
sketch7.addConstraint(Sketcher.Constraint("DistanceX", 0, 3, -1, 1, Q("14.62 in")))
sketch7.addConstraint(Sketcher.Constraint("DistanceY", -1, 1, 0, 3, Q("19.87 in")))
doc.recompute()
hole = body.newObject("PartDesign::Hole", "Hole")
hole.Profile = sketch7
hole.ThreadType = "None"
hole.Diameter = Q("0.5312 in")
hole.DepthType = "Dimension"
hole.Depth = Q("1.5 in")
hole.DrillPoint = "Angled"
hole.DrillPointAngle = 118

sketch8 = body.newObject("Sketcher::SketchObject", "Sketch007")
sketch8.AttachmentSupport = (doc.getObject("XY_Plane"), [""])
sketch8.MapMode = "FlatFace"
sketch8.addGeometry(Part.Circle(App.Vector(-1149, -1143, 0), App.Vector(0, 0, 1), 13), False)
sketch8.addGeometry(Part.Circle(App.Vector(-1149, -762, 0), App.Vector(0, 0, 1), 13), False)
sketch8.addGeometry(Part.Circle(App.Vector(-1149, -381, 0), App.Vector(0, 0, 1), 13), False)
sketch8.addGeometry(Part.Circle(App.Vector(-1149, 0, 0), App.Vector(0, 0, 1), 13), False)
sketch8.addGeometry(Part.Circle(App.Vector(-1149, 381, 0), App.Vector(0, 0, 1), 13), False)
sketch8.addGeometry(Part.Circle(App.Vector(-1149, 762, 0), App.Vector(0, 0, 1), 13), False)
sketch8.addGeometry(Part.Circle(App.Vector(-1149, 1143, 0), App.Vector(0, 0, 1), 13), False)
sketch8.addGeometry(Part.Circle(App.Vector(1149, 1143, 0), App.Vector(0, 0, 1), 13), False)
sketch8.addGeometry(Part.Circle(App.Vector(1149, 762, 0), App.Vector(0, 0, 1), 13), False)
sketch8.addGeometry(Part.Circle(App.Vector(1149, 381, 0), App.Vector(0, 0, 1), 13), False)
sketch8.addGeometry(Part.Circle(App.Vector(1149, 0, 0), App.Vector(0, 0, 1), 13), False)
sketch8.addGeometry(Part.Circle(App.Vector(1149, -381, 0), App.Vector(0, 0, 1), 13), False)
sketch8.addGeometry(Part.Circle(App.Vector(1149, -762, 0), App.Vector(0, 0, 1), 13), False)
sketch8.addGeometry(Part.Circle(App.Vector(1149, -1143, 0), App.Vector(0, 0, 1), 13), False)
sketch8.addConstraint(Sketcher.Constraint("Equal", 0, 1))
sketch8.addConstraint(Sketcher.Constraint("Equal", 1, 2))
sketch8.addConstraint(Sketcher.Constraint("Equal", 2, 3))
sketch8.addConstraint(Sketcher.Constraint("Equal", 3, 4))
sketch8.addConstraint(Sketcher.Constraint("Equal", 4, 5))
sketch8.addConstraint(Sketcher.Constraint("Equal", 5, 6))
sketch8.addConstraint(Sketcher.Constraint("Equal", 6, 7))
sketch8.addConstraint(Sketcher.Constraint("Equal", 7, 8))
sketch8.addConstraint(Sketcher.Constraint("Equal", 8, 9))
sketch8.addConstraint(Sketcher.Constraint("Equal", 9, 10))
sketch8.addConstraint(Sketcher.Constraint("Equal", 10, 11))
sketch8.addConstraint(Sketcher.Constraint("Equal", 11, 12))
sketch8.addConstraint(Sketcher.Constraint("Equal", 12, 13))
sketch8.addConstraint(Sketcher.Constraint("Symmetric", 0, 3, 7, 3, -1, 1))
sketch8.addConstraint(Sketcher.Constraint("Symmetric", 1, 3, 8, 3, -1, 1))
sketch8.addConstraint(Sketcher.Constraint("Symmetric", 2, 3, 9, 3, -1, 1))
sketch8.addConstraint(Sketcher.Constraint("Symmetric", 3, 3, 10, 3, -1, 1))
sketch8.addConstraint(Sketcher.Constraint("Symmetric", 4, 3, 11, 3, -1, 1))
sketch8.addConstraint(Sketcher.Constraint("Symmetric", 5, 3, 12, 3, -1, 1))
sketch8.addConstraint(Sketcher.Constraint("Symmetric", 6, 3, 13, 3, -1, 1))
sketch8.addConstraint(Sketcher.Constraint("Symmetric", 6, 3, 7, 3, -2))
sketch8.addConstraint(Sketcher.Constraint("Symmetric", 5, 3, 8, 3, -2))
sketch8.addConstraint(Sketcher.Constraint("Symmetric", 4, 3, 9, 3, -2))
sketch8.addConstraint(Sketcher.Constraint("PointOnObject", 3, 3, -1))
sketch8.addConstraint(Sketcher.Constraint("Vertical", 0, 3, 1, 3))
sketch8.addConstraint(Sketcher.Constraint("Vertical", 1, 3, 2, 3))
sketch8.addConstraint(Sketcher.Constraint("Vertical", 2, 3, 3, 3))
sketch8.addConstraint(Sketcher.Constraint("Diameter", 0, Q("1.062 in")))
sketch8.addConstraint(Sketcher.Constraint("DistanceY", 0, 3, -1, 1, Q("45 in")))
sketch8.addConstraint(Sketcher.Constraint("DistanceY", 1, 3, -1, 1, Q("30 in")))
sketch8.addConstraint(Sketcher.Constraint("DistanceY", 2, 3, -1, 1, Q("15 in")))
sketch8.addConstraint(Sketcher.Constraint("DistanceX", 6, 3, 7, 3, Q("90.5 in")))
doc.recompute()
hole2 = body.newObject("PartDesign::Hole", "Hole001")
hole2.Profile = sketch8
hole2.ThreadType = "None"
hole2.Diameter = Q("1.062 in")
hole2.DepthType = "ThroughAll"
hole2.HoleCutType = "Counterbore"
hole2.HoleCutDiameter = Q("1.56 in")
hole2.HoleCutDepth = Q("1.06 in")

sketch9 = body.newObject("Sketcher::SketchObject", "Sketch008")
sketch9.AttachmentSupport = (doc.getObject("XY_Plane"), [""])
sketch9.MapMode = "FlatFace"
sketch9.addGeometry(Part.Circle(App.Vector(-1524, -184, 0), App.Vector(0, 0, 1), 11), False)
sketch9.addGeometry(Part.Circle(App.Vector(-1524, -972, 0), App.Vector(0, 0, 1), 11), False)
sketch9.addGeometry(Part.Circle(App.Vector(1524, -184, 0), App.Vector(0, 0, 1), 11), False)
sketch9.addGeometry(Part.Circle(App.Vector(1524, -972, 0), App.Vector(0, 0, 1), 11), False)
sketch9.addConstraint(Sketcher.Constraint("Equal", 0, 1))
sketch9.addConstraint(Sketcher.Constraint("Equal", 1, 2))
sketch9.addConstraint(Sketcher.Constraint("Equal", 2, 3))
sketch9.addConstraint(Sketcher.Constraint("Symmetric", 0, 3, 2, 3, -2))
sketch9.addConstraint(Sketcher.Constraint("Symmetric", 1, 3, 3, 3, -2))
sketch9.addConstraint(Sketcher.Constraint("Vertical", 0, 3, 1, 3))
sketch9.addConstraint(Sketcher.Constraint("Diameter", 0, Q("0.875 in")))
sketch9.addConstraint(Sketcher.Constraint("DistanceX", 0, 3, -1, 1, Q("60 in")))
sketch9.addConstraint(Sketcher.Constraint("DistanceY", 1, 3, 0, 3, Q("31 in")))
sketch9.addConstraint(Sketcher.Constraint("DistanceY", 0, 3, -1, 1, Q("7.25 in")))
doc.recompute()
hole3 = body.newObject("PartDesign::Hole", "Hole002")
hole3.Profile = sketch9
hole3.ThreadType = "None"
hole3.Diameter = Q("0.875 in")
hole3.DepthType = "ThroughAll"

sketch10 = body.newObject("Sketcher::SketchObject", "Sketch009")
sketch10.AttachmentSupport = (doc.getObject("XY_Plane"), [""])
sketch10.MapMode = "FlatFace"
sketch10.addGeometry(Part.Circle(App.Vector(1397, 1124, 0), App.Vector(0, 0, 1), 14), False)
sketch10.addGeometry(Part.Circle(App.Vector(1397, 616, 0), App.Vector(0, 0, 1), 14), False)
sketch10.addConstraint(Sketcher.Constraint("Equal", 0, 1))
sketch10.addConstraint(Sketcher.Constraint("Vertical", 0, 3, 1, 3))
sketch10.addConstraint(Sketcher.Constraint("DistanceX", -1, 1, 0, 3, Q("55 in")))
sketch10.addConstraint(Sketcher.Constraint("DistanceY", 1, 3, 0, 3, Q("20 in")))
sketch10.addConstraint(Sketcher.Constraint("Diameter", 0, Q("1.1094 in")))
sketch10.addConstraint(Sketcher.Constraint("DistanceY", -1, 1, 0, 3, Q("44.25 in")))
doc.recompute()
hole4 = body.newObject("PartDesign::Hole", "Hole003")
hole4.Profile = sketch10
hole4.ThreadType = "None"
hole4.Diameter = Q("1.1094 in")
hole4.DepthType = "ThroughAll"

sketch11 = body.newObject("Sketcher::SketchObject", "Sketch010")
sketch11.AttachmentSupport = (doc.getObject("XY_Plane"), [""])
sketch11.MapMode = "FlatFace"
sketch11.addGeometry(Part.Circle(App.Vector(-1219, 1124, 0), App.Vector(0, 0, 1), 14), False)
sketch11.addGeometry(Part.Circle(App.Vector(-1219, 616, 0), App.Vector(0, 0, 1), 14), False)
sketch11.addConstraint(Sketcher.Constraint("Equal", 0, 1))
sketch11.addConstraint(Sketcher.Constraint("Vertical", 0, 3, 1, 3))
sketch11.addConstraint(Sketcher.Constraint("DistanceX", 0, 3, -1, 1, Q("48 in")))
sketch11.addConstraint(Sketcher.Constraint("DistanceY", 1, 3, 0, 3, Q("20 in")))
sketch11.addConstraint(Sketcher.Constraint("Diameter", 0, Q("1.1094 in")))
sketch11.addConstraint(Sketcher.Constraint("DistanceY", -1, 1, 0, 3, Q("44.25 in")))
doc.recompute()
hole5 = body.newObject("PartDesign::Hole", "Hole004")
hole5.Profile = sketch11
hole5.ThreadType = "None"
hole5.Diameter = Q("1.1094 in")
hole5.DepthType = "ThroughAll"

doc.recompute()
